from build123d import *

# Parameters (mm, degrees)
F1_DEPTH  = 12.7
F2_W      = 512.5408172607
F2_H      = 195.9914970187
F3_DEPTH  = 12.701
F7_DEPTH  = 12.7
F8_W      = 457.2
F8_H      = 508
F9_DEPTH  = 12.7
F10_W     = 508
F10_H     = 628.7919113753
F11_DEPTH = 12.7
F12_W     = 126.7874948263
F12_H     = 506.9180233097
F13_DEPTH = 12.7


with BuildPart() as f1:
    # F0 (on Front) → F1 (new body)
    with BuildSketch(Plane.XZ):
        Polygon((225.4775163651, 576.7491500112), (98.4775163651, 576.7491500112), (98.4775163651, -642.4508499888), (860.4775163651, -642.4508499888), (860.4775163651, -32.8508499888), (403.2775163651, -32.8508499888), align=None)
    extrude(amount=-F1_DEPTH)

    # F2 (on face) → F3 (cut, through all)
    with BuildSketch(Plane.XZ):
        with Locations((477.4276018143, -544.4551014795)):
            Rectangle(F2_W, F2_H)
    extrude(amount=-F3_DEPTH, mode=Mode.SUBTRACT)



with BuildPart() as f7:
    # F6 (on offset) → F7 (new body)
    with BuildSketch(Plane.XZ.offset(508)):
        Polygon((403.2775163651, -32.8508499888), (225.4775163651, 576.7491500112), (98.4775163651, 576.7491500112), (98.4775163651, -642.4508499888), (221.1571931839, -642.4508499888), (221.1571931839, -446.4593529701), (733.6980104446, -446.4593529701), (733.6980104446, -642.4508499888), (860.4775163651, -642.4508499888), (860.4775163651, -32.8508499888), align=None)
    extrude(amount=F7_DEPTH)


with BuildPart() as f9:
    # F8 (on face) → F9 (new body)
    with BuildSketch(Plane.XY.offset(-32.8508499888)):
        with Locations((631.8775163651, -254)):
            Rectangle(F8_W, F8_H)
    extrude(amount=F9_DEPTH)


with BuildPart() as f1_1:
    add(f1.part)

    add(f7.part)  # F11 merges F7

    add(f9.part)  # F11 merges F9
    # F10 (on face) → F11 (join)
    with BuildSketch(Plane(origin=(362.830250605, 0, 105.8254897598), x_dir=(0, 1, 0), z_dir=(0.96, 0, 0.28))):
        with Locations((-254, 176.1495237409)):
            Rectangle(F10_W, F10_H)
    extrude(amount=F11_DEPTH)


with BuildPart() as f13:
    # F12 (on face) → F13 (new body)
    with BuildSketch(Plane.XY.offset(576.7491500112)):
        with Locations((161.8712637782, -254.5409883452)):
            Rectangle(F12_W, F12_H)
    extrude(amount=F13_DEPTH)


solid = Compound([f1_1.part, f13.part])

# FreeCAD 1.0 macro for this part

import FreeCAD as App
import Part
import Sketcher

V = App.Vector
Q = App.Units.Quantity


def add_polygon(sketch, points):
    """Adds a closed chain of lines whose ends are joined by coincident constraints."""
    first, n = sketch.GeometryCount, len(points)
    for a, b in zip(points, points[1:] + points[:1]):
        sketch.addGeometry(Part.LineSegment(App.Vector(*a, 0), App.Vector(*b, 0)), False)
    for i in range(n):
        sketch.addConstraint(Sketcher.Constraint("Coincident", first + i, 2, first + (i + 1) % n, 1))

doc = App.newDocument("Part")
body = doc.addObject("PartDesign::Body", "Body")

sketch1 = body.newObject("Sketcher::SketchObject", "Sketch")
sketch1.AttachmentSupport = (doc.getObject("XZ_Plane"), [""])
sketch1.MapMode = "FlatFace"
add_polygon(sketch1, [(225, 577), (98, 577), (98, -642), (860, -642), (860, -33), (403, -33)])
sketch1.addConstraint([
    Sketcher.Constraint("Horizontal", 0),
    Sketcher.Constraint("Vertical", 1),
    Sketcher.Constraint("Horizontal", 2),
    Sketcher.Constraint("Vertical", 3),
    Sketcher.Constraint("Horizontal", 4),
    Sketcher.Constraint("DistanceX", 0, 2, 0, 1, Q("5 in")),
    Sketcher.Constraint("DistanceX", 2, 1, 2, 2, Q("30 in")),
    Sketcher.Constraint("DistanceX", 4, 2, 4, 1, Q("18 in")),
    Sketcher.Constraint("DistanceY", 1, 2, 1, 1, Q("48 in")),
    Sketcher.Constraint("DistanceY", 3, 1, 3, 2, Q("24 in")),
    Sketcher.Constraint("DistanceY", -1, 1, 0, 2, Q("576.74915 mm")),
    Sketcher.Constraint("DistanceX", -1, 1, 0, 2, Q("98.477516 mm")),
])
pad1 = body.newObject("PartDesign::Pad", "Pad")
pad1.Profile = sketch1
pad1.Length = Q("0.5 in")
pad1.Reversed = True

sketch2 = body.newObject("Sketcher::SketchObject", "Sketch001")
sketch2.AttachmentSupport = (doc.getObject("XZ_Plane"), [""])
sketch2.MapMode = "FlatFace"
add_polygon(sketch2, [(221, -446), (221, -642), (734, -642), (734, -446)])
sketch2.addConstraint([
    Sketcher.Constraint("Vertical", 0),
    Sketcher.Constraint("Horizontal", 1),
    Sketcher.Constraint("Vertical", 2),
    Sketcher.Constraint("Horizontal", 3),
    Sketcher.Constraint("DistanceX", 1, 1, 1, 2, Q("512.540817 mm")),
    Sketcher.Constraint("DistanceY", 0, 2, 0, 1, Q("195.991497 mm")),
    Sketcher.Constraint("DistanceY", 0, 2, -1, 1, Q("642.45085 mm")),
    Sketcher.Constraint("DistanceX", -1, 1, 1, 2, Q("733.69801 mm")),
])
pocket1 = body.newObject("PartDesign::Pocket", "Pocket")
pocket1.Profile = sketch2
pocket1.Type = "ThroughAll"
body2 = doc.addObject("PartDesign::Body", "Body001")

sketch3 = body2.newObject("Sketcher::SketchObject", "Sketch002")
sketch3.AttachmentSupport = (doc.getObject("XZ_Plane001"), [""])
sketch3.MapMode = "FlatFace"
sketch3.AttachmentOffset = App.Placement(V(0, 0, 20 * 25.4), App.Rotation())
add_polygon(sketch3, [(403, -33), (225, 577), (98, 577), (98, -642), (221, -642), (221, -446), (734, -446), (734, -642), (860, -642), (860, -33)])
sketch3.addConstraint([
    Sketcher.Constraint("Horizontal", 1),
    Sketcher.Constraint("Vertical", 2),
    Sketcher.Constraint("Horizontal", 3),
    Sketcher.Constraint("Vertical", 4),
    Sketcher.Constraint("Horizontal", 5),
    Sketcher.Constraint("Vertical", 6),
    Sketcher.Constraint("Horizontal", 7),
    Sketcher.Constraint("Vertical", 8),
    Sketcher.Constraint("Horizontal", 9),
    Sketcher.Constraint("Horizontal", 3, 2, 6, 2),
    Sketcher.Constraint("DistanceX", 1, 2, 1, 1, Q("5 in")),
    Sketcher.Constraint("DistanceX", 9, 2, 9, 1, Q("18 in")),
    Sketcher.Constraint("DistanceY", 2, 2, 2, 1, Q("48 in")),
    Sketcher.Constraint("DistanceY", 8, 1, 8, 2, Q("24 in")),
    Sketcher.Constraint("Distance", 0, Q("25 in")),
    Sketcher.Constraint("DistanceX", 3, 1, 3, 2, Q("122.679677 mm")),
    Sketcher.Constraint("DistanceX", 5, 1, 5, 2, Q("512.540817 mm")),
    Sketcher.Constraint("DistanceY", 4, 1, 4, 2, Q("195.991497 mm")),
    Sketcher.Constraint("DistanceY", -1, 1, 0, 2, Q("576.74915 mm")),
    Sketcher.Constraint("DistanceX", -1, 1, 5, 2, Q("733.69801 mm")),
])
pad2 = body2.newObject("PartDesign::Pad", "Pad001")
pad2.Profile = sketch3
pad2.Length = Q("0.5 in")
body3 = doc.addObject("PartDesign::Body", "Body002")

sketch4 = body3.newObject("Sketcher::SketchObject", "Sketch003")
sketch4.AttachmentSupport = (doc.getObject("XY_Plane002"), [""])
sketch4.MapMode = "FlatFace"
sketch4.AttachmentOffset = App.Placement(V(0, 0, -32.85085), App.Rotation())
add_polygon(sketch4, [(403, 0), (403, -508), (860, -508), (860, 0)])
sketch4.addConstraint([
    Sketcher.Constraint("Vertical", 0),
    Sketcher.Constraint("Horizontal", 1),
    Sketcher.Constraint("Vertical", 2),
    Sketcher.Constraint("Horizontal", 3),
    Sketcher.Constraint("PointOnObject", 2, 2, -1),
    Sketcher.Constraint("DistanceX", 1, 1, 1, 2, Q("18 in")),
    Sketcher.Constraint("DistanceY", 0, 2, 0, 1, Q("20 in")),
    Sketcher.Constraint("DistanceX", -1, 1, 0, 2, Q("403.277516 mm")),
])
pad3 = body3.newObject("PartDesign::Pad", "Pad002")
pad3.Profile = sketch4
pad3.Length = Q("0.5 in")
body.AllowCompound = True
doc.recompute()

boolean = body.newObject("PartDesign::Boolean", "Boolean")
boolean.Type = "Fuse"
boolean.addObjects([body2])
doc.recompute()

boolean2 = body.newObject("PartDesign::Boolean", "Boolean001")
boolean2.Type = "Fuse"
boolean2.addObjects([body3])

sketch5 = body.newObject("Sketcher::SketchObject", "Sketch004")
sketch5.Placement = App.Placement(V(362.830251, 0, 105.82549), App.Rotation(V(0, 1, 0), V(-0.28, 0, 0.96), V(0.96, 0, 0.28), "ZXY"))
add_polygon(sketch5, [(-508, 491), (-508, -138), (0, -138), (0, 491)])
sketch5.addConstraint([
    Sketcher.Constraint("Vertical", 0),
    Sketcher.Constraint("Horizontal", 1),
    Sketcher.Constraint("Vertical", 2),
    Sketcher.Constraint("Horizontal", 3),
    Sketcher.Constraint("PointOnObject", 1, 2, -2),
    Sketcher.Constraint("DistanceX", 1, 1, 1, 2, Q("20 in")),
    Sketcher.Constraint("DistanceY", 0, 2, 0, 1, Q("628.791911 mm")),
    Sketcher.Constraint("DistanceY", 0, 2, -1, 1, Q("138.246432 mm")),
])
pad4 = body.newObject("PartDesign::Pad", "Pad003")
pad4.Profile = sketch5
pad4.Length = Q("0.5 in")
body4 = doc.addObject("PartDesign::Body", "Body003")

sketch6 = body4.newObject("Sketcher::SketchObject", "Sketch005")
sketch6.AttachmentSupport = (doc.getObject("XY_Plane003"), [""])
sketch6.MapMode = "FlatFace"
sketch6.AttachmentOffset = App.Placement(V(0, 0, 576.74915), App.Rotation())
add_polygon(sketch6, [(98, -1), (98, -508), (225, -508), (225, -1)])
sketch6.addConstraint([
    Sketcher.Constraint("Vertical", 0),
    Sketcher.Constraint("Horizontal", 1),
    Sketcher.Constraint("Vertical", 2),
    Sketcher.Constraint("Horizontal", 3),
    Sketcher.Constraint("DistanceY", 0, 2, -1, 1, Q("20 in")),
    Sketcher.Constraint("DistanceX", 1, 1, 1, 2, Q("126.787495 mm")),
    Sketcher.Constraint("DistanceY", 0, 2, 0, 1, Q("506.918023 mm")),
    Sketcher.Constraint("DistanceX", -1, 1, 1, 2, Q("225.265011 mm")),
])
pad5 = body4.newObject("PartDesign::Pad", "Pad004")
pad5.Profile = sketch6
pad5.Length = Q("0.5 in")

doc.recompute()
